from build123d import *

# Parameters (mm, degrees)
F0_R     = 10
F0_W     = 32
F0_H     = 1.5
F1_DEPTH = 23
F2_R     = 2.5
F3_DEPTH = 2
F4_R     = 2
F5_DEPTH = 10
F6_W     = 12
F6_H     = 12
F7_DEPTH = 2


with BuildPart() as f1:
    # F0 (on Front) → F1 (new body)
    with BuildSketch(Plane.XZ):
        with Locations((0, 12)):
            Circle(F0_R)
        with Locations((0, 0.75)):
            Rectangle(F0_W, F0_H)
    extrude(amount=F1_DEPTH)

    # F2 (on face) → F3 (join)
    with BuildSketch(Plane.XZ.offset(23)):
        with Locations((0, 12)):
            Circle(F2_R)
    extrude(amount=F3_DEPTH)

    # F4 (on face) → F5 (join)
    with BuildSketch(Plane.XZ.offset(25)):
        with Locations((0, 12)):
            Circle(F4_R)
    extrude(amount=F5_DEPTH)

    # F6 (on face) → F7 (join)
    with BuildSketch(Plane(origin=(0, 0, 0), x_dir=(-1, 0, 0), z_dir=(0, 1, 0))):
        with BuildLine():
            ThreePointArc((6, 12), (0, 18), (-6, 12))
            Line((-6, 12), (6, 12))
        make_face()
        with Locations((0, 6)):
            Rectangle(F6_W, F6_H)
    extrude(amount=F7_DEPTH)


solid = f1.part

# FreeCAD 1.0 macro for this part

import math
import FreeCAD as App
import Part
import Sketcher

doc = App.newDocument("Part")
body = doc.addObject("PartDesign::Body", "Body")
body.AllowCompound = True

sketch1 = body.newObject("Sketcher::SketchObject", "Sketch")
sketch1.AttachmentSupport = (doc.getObject("XZ_Plane"), [""])
sketch1.MapMode = "FlatFace"
sketch1.addGeometry([
    Part.Circle(App.Vector(0, 12, 0), App.Vector(0, 0, 1), 10),
    Part.LineSegment(App.Vector(-16, 1.5, 0), App.Vector(-16, 0, 0)),
    Part.LineSegment(App.Vector(-16, 0, 0), App.Vector(16, 0, 0)),
    Part.LineSegment(App.Vector(16, 0, 0), App.Vector(16, 1.5, 0)),
    Part.LineSegment(App.Vector(16, 1.5, 0), App.Vector(-16, 1.5, 0)),
], False)
sketch1.addConstraint([
    Sketcher.Constraint("Coincident", 1, 2, 2, 1),
    Sketcher.Constraint("Coincident", 2, 2, 3, 1),
    Sketcher.Constraint("Coincident", 3, 2, 4, 1),
    Sketcher.Constraint("Coincident", 4, 2, 1, 1),
    Sketcher.Constraint("Vertical", 1),
    Sketcher.Constraint("Horizontal", 2),
    Sketcher.Constraint("Vertical", 3),
    Sketcher.Constraint("Horizontal", 4),
    Sketcher.Constraint("Symmetric", 1, 2, 2, 2, -1, 1),
    Sketcher.Constraint("PointOnObject", 0, 3, -2),
    Sketcher.Constraint("Diameter", 0, 20.0),
    Sketcher.Constraint("DistanceX", 2, 1, 2, 2, 32.0),
    Sketcher.Constraint("DistanceY", 1, 2, 1, 1, 1.5),
    Sketcher.Constraint("DistanceY", -1, 1, 0, 3, 12.0),
])
pad1 = body.newObject("PartDesign::Pad", "Pad")
pad1.Profile = sketch1
pad1.Length = 23

sketch2 = body.newObject("Sketcher::SketchObject", "Sketch001")
sketch2.AttachmentSupport = (doc.getObject("XZ_Plane"), [""])
sketch2.MapMode = "FlatFace"
sketch2.AttachmentOffset = App.Placement(App.Vector(0, 0, 23), App.Rotation())
sketch2.addGeometry(Part.Circle(App.Vector(0, 12, 0), App.Vector(0, 0, 1), 2.5), False)
sketch2.addConstraint([
    Sketcher.Constraint("PointOnObject", 0, 3, -2),
    Sketcher.Constraint("Diameter", 0, 5.0),
    Sketcher.Constraint("DistanceY", -1, 1, 0, 3, 12.0),
])
pad2 = body.newObject("PartDesign::Pad", "Pad001")
pad2.Profile = sketch2
pad2.Length = 2

sketch3 = body.newObject("Sketcher::SketchObject", "Sketch002")
sketch3.AttachmentSupport = (doc.getObject("XZ_Plane"), [""])
sketch3.MapMode = "FlatFace"
sketch3.AttachmentOffset = App.Placement(App.Vector(0, 0, 25), App.Rotation())
sketch3.addGeometry(Part.Circle(App.Vector(0, 12, 0), App.Vector(0, 0, 1), 2), False)
sketch3.addConstraint([
    Sketcher.Constraint("PointOnObject", 0, 3, -2),
    Sketcher.Constraint("Diameter", 0, 4.0),
    Sketcher.Constraint("DistanceY", -1, 1, 0, 3, 12.0),
])
pad3 = body.newObject("PartDesign::Pad", "Pad002")
pad3.Profile = sketch3
pad3.Length = 10

sketch4 = body.newObject("Sketcher::SketchObject", "Sketch003")
sketch4.AttachmentSupport = (doc.getObject("XZ_Plane"), [""])
sketch4.MapMode = "FlatFace"
sketch4.addGeometry([
    Part.ArcOfCircle(Part.Circle(App.Vector(0, 12, 0), App.Vector(0, 0, 1), 6), math.radians(0), math.radians(180)),
    Part.LineSegment(App.Vector(6, 12, 0), App.Vector(6, 0, 0)),
    Part.LineSegment(App.Vector(6, 0, 0), App.Vector(-6, 0, 0)),
    Part.LineSegment(App.Vector(-6, 0, 0), App.Vector(-6, 12, 0)),
], False)
sketch4.addConstraint([
    Sketcher.Constraint("Tangent", 0, 1, 1, 1),
    Sketcher.Constraint("Coincident", 1, 2, 2, 1),
    Sketcher.Constraint("Coincident", 2, 2, 3, 1),
    Sketcher.Constraint("Tangent", 3, 2, 0, 2),
    Sketcher.Constraint("Vertical", 1),
    Sketcher.Constraint("Horizontal", 2),
    Sketcher.Constraint("Vertical", 3),
    Sketcher.Constraint("Symmetric", 1, 2, 2, 2, -1, 1),
    Sketcher.Constraint("Equal", 2, 1),
    Sketcher.Constraint("Radius", 0, 6.0),
])
pad4 = body.newObject("PartDesign::Pad", "Pad003")
pad4.Profile = sketch4
pad4.Length = 2
pad4.Reversed = True

doc.recompute()
